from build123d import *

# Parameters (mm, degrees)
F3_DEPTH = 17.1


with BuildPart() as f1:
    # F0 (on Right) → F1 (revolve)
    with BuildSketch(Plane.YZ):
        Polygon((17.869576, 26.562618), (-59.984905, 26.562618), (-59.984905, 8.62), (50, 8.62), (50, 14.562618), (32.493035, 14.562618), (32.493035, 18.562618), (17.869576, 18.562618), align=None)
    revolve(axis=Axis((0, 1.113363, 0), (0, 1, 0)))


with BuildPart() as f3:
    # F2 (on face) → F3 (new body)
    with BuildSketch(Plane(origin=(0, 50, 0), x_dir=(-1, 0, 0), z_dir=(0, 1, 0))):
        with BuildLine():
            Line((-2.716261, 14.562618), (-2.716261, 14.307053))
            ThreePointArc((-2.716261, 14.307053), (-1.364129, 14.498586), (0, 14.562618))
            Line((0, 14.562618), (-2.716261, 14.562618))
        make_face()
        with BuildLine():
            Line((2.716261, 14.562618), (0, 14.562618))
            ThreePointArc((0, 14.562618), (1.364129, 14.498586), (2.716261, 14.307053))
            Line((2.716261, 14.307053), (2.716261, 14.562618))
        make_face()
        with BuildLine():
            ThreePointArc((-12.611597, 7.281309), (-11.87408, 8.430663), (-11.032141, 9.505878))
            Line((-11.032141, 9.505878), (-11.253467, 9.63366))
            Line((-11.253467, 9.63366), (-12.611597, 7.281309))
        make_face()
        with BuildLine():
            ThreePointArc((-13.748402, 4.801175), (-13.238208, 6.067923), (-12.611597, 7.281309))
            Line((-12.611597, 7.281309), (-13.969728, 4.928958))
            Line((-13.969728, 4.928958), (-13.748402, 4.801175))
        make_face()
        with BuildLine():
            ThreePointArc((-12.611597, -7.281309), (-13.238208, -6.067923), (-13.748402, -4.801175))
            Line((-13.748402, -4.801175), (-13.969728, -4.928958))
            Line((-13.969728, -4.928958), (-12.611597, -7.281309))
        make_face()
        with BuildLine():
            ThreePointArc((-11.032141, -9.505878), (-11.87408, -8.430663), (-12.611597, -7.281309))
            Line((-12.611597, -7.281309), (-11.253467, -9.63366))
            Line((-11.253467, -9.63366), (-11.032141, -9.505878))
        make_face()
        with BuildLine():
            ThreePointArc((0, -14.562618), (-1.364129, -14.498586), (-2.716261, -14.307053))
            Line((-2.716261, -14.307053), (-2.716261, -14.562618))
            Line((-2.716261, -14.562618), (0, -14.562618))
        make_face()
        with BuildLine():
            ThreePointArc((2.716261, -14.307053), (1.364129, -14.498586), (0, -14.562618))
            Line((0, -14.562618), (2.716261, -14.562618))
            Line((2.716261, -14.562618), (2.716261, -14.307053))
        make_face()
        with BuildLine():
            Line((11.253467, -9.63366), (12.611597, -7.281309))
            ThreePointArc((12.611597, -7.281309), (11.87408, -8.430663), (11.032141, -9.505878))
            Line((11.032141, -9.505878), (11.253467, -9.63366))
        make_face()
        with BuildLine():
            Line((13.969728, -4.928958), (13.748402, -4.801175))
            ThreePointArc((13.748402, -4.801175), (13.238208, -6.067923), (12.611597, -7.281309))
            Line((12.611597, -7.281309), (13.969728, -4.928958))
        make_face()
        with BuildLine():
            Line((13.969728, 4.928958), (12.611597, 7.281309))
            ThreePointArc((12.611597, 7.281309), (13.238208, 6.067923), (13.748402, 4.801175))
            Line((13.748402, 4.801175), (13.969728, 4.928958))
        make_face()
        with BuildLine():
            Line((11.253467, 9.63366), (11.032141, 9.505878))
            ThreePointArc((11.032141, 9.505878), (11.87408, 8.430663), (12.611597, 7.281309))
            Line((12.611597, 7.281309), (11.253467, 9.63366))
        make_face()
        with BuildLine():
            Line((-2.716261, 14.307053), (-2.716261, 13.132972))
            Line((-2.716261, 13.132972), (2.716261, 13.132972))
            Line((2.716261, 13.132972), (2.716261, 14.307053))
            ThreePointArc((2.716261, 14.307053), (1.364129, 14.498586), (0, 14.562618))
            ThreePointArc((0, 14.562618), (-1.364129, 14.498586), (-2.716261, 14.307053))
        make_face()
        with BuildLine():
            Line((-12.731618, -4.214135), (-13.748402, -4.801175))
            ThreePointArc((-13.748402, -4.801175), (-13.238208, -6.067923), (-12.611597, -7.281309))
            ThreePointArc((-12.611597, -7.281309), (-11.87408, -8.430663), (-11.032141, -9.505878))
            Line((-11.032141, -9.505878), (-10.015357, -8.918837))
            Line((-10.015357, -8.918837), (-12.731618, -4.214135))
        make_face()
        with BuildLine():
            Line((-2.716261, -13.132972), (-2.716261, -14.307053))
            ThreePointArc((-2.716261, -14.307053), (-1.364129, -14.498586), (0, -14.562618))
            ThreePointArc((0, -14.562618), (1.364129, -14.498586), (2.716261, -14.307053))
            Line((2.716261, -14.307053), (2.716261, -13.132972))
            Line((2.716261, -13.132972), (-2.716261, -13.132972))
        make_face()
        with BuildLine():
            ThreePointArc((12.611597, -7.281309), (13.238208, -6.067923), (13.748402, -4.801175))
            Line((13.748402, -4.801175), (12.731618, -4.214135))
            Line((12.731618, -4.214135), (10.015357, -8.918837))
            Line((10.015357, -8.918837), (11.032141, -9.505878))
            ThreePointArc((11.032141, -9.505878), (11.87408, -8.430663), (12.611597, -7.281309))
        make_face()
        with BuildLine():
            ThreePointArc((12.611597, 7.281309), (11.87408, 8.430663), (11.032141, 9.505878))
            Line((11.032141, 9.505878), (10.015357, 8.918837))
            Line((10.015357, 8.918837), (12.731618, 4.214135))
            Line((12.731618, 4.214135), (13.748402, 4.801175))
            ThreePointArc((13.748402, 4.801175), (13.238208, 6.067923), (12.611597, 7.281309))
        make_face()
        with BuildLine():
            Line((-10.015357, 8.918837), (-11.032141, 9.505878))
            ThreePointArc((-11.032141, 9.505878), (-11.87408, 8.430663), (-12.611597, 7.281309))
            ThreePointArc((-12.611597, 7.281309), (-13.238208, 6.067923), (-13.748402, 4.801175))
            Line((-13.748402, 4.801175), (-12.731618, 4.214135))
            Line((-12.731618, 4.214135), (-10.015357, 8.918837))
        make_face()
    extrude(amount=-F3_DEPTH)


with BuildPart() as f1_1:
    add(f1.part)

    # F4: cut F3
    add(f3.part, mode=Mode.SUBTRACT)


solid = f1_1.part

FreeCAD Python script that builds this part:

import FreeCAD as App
import Part
import Sketcher

V = App.Vector
Q = App.Units.Quantity

doc = App.newDocument("Part")
body = doc.addObject("PartDesign::Body", "Body")

# Sketch on YZ plane
sketch1 = body.newObject("Sketcher::SketchObject", "Sketch")
sketch1.AttachmentSupport = (doc.getObject("YZ_Plane"), [""])
sketch1.MapMode = "FlatFace"
sketch1.addGeometry([
    Part.LineSegment(V(17.9, 26.6, 0), V(-60, 26.6, 0)),  # 0
    Part.LineSegment(V(-60, 26.6, 0), V(-60, 8.6, 0)),  # 1
    Part.LineSegment(V(-60, 8.6, 0), V(50, 8.6, 0)),  # 2
    Part.LineSegment(V(50, 8.6, 0), V(50, 14.6, 0)),  # 3
    Part.LineSegment(V(50, 14.6, 0), V(32.5, 14.6, 0)),  # 4
    Part.LineSegment(V(32.5, 14.6, 0), V(32.5, 18.6, 0)),  # 5
    Part.LineSegment(V(32.5, 18.6, 0), V(17.9, 18.6, 0)),  # 6
    Part.LineSegment(V(17.9, 18.6, 0), V(17.9, 26.6, 0)),  # 7
], False)
sketch1.addConstraint([
    Sketcher.Constraint("Coincident", 0, 2, 1, 1),
    Sketcher.Constraint("Coincident", 1, 2, 2, 1),
    Sketcher.Constraint("Coincident", 2, 2, 3, 1),
    Sketcher.Constraint("Coincident", 3, 2, 4, 1),
    Sketcher.Constraint("Coincident", 4, 2, 5, 1),
    Sketcher.Constraint("Coincident", 5, 2, 6, 1),
    Sketcher.Constraint("Coincident", 6, 2, 7, 1),
    Sketcher.Constraint("Coincident", 7, 2, 0, 1),
    Sketcher.Constraint("Horizontal", 0),
    Sketcher.Constraint("Vertical", 1),
    Sketcher.Constraint("Horizontal", 2),
    Sketcher.Constraint("Vertical", 3),
    Sketcher.Constraint("Horizontal", 4),
    Sketcher.Constraint("Vertical", 5),
    Sketcher.Constraint("Horizontal", 6),
    Sketcher.Constraint("Vertical", 7),
    Sketcher.Constraint("DistanceY", 5, 1, 5, 2, Q("4 mm")),
    Sketcher.Constraint("DistanceY", 7, 1, 7, 2, Q("8 mm")),
    Sketcher.Constraint("DistanceX", -1, 1, 2, 2, Q("50 mm")),
    Sketcher.Constraint("DistanceY", -1, 1, 1, 2, Q("8.62 mm")),
    Sketcher.Constraint("DistanceX", 0, 2, 0, 1, Q("77.854481 mm")),
    Sketcher.Constraint("DistanceX", 6, 2, 6, 1, Q("14.623459 mm")),
    Sketcher.Constraint("DistanceY", 1, 2, 1, 1, Q("17.942618 mm")),
    Sketcher.Constraint("DistanceX", 2, 1, 2, 2, Q("109.984905 mm")),
])
revolution = body.newObject("PartDesign::Revolution", "Revolution")
revolution.Profile = sketch1
revolution.ReferenceAxis = (sketch1, ["H_Axis"])
revolution.Angle = 360
body2 = doc.addObject("PartDesign::Body", "Body001")
body2.AllowCompound = True

# Sketch on XZ plane
sketch2 = body2.newObject("Sketcher::SketchObject", "Sketch001")
sketch2.AttachmentSupport = (doc.getObject("XZ_Plane001"), [""])
sketch2.MapMode = "FlatFace"
sketch2.AttachmentOffset = App.Placement(V(0, 0, -50), App.Rotation())
sketch2.addGeometry([
    Part.LineSegment(V(2.72, 14.56, 0), V(2.72, 13.13, 0)),  # 0
    Part.LineSegment(V(2.72, 13.13, 0), V(-2.72, 13.13, 0)),  # 1
    Part.LineSegment(V(-2.72, 13.13, 0), V(-2.72, 14.56, 0)),  # 2
    Part.LineSegment(V(-2.72, 14.56, 0), V(2.72, 14.56, 0)),  # 3
    Part.LineSegment(V(11.03, 9.51, 0), V(11.25, 9.63, 0)),  # 4
    Part.LineSegment(V(11.25, 9.63, 0), V(12.61, 7.28, 0)),  # 5
    Part.LineSegment(V(12.61, 7.28, 0), V(13.97, 4.93, 0)),  # 6
    Part.LineSegment(V(13.97, 4.93, 0), V(13.75, 4.8, 0)),  # 7
    Part.LineSegment(V(13.75, 4.8, 0), V(12.73, 4.21, 0)),  # 8
    Part.LineSegment(V(12.73, 4.21, 0), V(10.02, 8.92, 0)),  # 9
    Part.LineSegment(V(10.02, 8.92, 0), V(11.03, 9.51, 0)),  # 10
    Part.LineSegment(V(13.75, -4.8, 0), V(13.97, -4.93, 0)),  # 11
    Part.LineSegment(V(13.97, -4.93, 0), V(12.61, -7.28, 0)),  # 12
    Part.LineSegment(V(12.61, -7.28, 0), V(11.25, -9.63, 0)),  # 13
    Part.LineSegment(V(11.25, -9.63, 0), V(11.03, -9.51, 0)),  # 14
    Part.LineSegment(V(11.03, -9.51, 0), V(10.02, -8.92, 0)),  # 15
    Part.LineSegment(V(10.02, -8.92, 0), V(12.73, -4.21, 0)),  # 16
    Part.LineSegment(V(12.73, -4.21, 0), V(13.75, -4.8, 0)),  # 17
    Part.LineSegment(V(2.72, -14.56, 0), V(-2.72, -14.56, 0)),  # 18
    Part.LineSegment(V(-2.72, -14.56, 0), V(-2.72, -13.13, 0)),  # 19
    Part.LineSegment(V(-2.72, -13.13, 0), V(2.72, -13.13, 0)),  # 20
    Part.LineSegment(V(2.72, -13.13, 0), V(2.72, -14.56, 0)),  # 21
    Part.LineSegment(V(-11.25, -9.63, 0), V(-12.61, -7.28, 0)),  # 22
    Part.LineSegment(V(-12.61, -7.28, 0), V(-13.97, -4.93, 0)),  # 23
    Part.LineSegment(V(-13.97, -4.93, 0), V(-13.75, -4.8, 0)),  # 24
    Part.LineSegment(V(-13.75, -4.8, 0), V(-12.73, -4.21, 0)),  # 25
    Part.LineSegment(V(-12.73, -4.21, 0), V(-10.02, -8.92, 0)),  # 26
    Part.LineSegment(V(-10.02, -8.92, 0), V(-11.03, -9.51, 0)),  # 27
    Part.LineSegment(V(-11.03, -9.51, 0), V(-11.25, -9.63, 0)),  # 28
    Part.LineSegment(V(-13.97, 4.93, 0), V(-12.61, 7.28, 0)),  # 29
    Part.LineSegment(V(-12.61, 7.28, 0), V(-11.25, 9.63, 0)),  # 30
    Part.LineSegment(V(-11.25, 9.63, 0), V(-11.03, 9.51, 0)),  # 31
    Part.LineSegment(V(-11.03, 9.51, 0), V(-10.02, 8.92, 0)),  # 32
    Part.LineSegment(V(-10.02, 8.92, 0), V(-12.73, 4.21, 0)),  # 33
    Part.LineSegment(V(-12.73, 4.21, 0), V(-13.75, 4.8, 0)),  # 34
    Part.LineSegment(V(-13.75, 4.8, 0), V(-13.97, 4.93, 0)),  # 35
], False)
sketch2.addConstraint([
    Sketcher.Constraint("Coincident", 0, 2, 1, 1),
    Sketcher.Constraint("Coincident", 1, 2, 2, 1),
    Sketcher.Constraint("Coincident", 2, 2, 3, 1),
    Sketcher.Constraint("Coincident", 3, 2, 0, 1),
    Sketcher.Constraint("Coincident", 4, 2, 5, 1),
    Sketcher.Constraint("Coincident", 5, 2, 6, 1),
    Sketcher.Constraint("Coincident", 6, 2, 7, 1),
    Sketcher.Constraint("Coincident", 7, 2, 8, 1),
    Sketcher.Constraint("Coincident", 8, 2, 9, 1),
    Sketcher.Constraint("Coincident", 9, 2, 10, 1),
    Sketcher.Constraint("Coincident", 10, 2, 4, 1),
    Sketcher.Constraint("Coincident", 11, 2, 12, 1),
    Sketcher.Constraint("Coincident", 12, 2, 13, 1),
    Sketcher.Constraint("Coincident", 13, 2, 14, 1),
    Sketcher.Constraint("Coincident", 14, 2, 15, 1),
    Sketcher.Constraint("Coincident", 15, 2, 16, 1),
    Sketcher.Constraint("Coincident", 16, 2, 17, 1),
    Sketcher.Constraint("Coincident", 17, 2, 11, 1),
    Sketcher.Constraint("Coincident", 18, 2, 19, 1),
    Sketcher.Constraint("Coincident", 19, 2, 20, 1),
    Sketcher.Constraint("Coincident", 20, 2, 21, 1),
    Sketcher.Constraint("Coincident", 21, 2, 18, 1),
    Sketcher.Constraint("Coincident", 22, 2, 23, 1),
    Sketcher.Constraint("Coincident", 23, 2, 24, 1),
    Sketcher.Constraint("Coincident", 24, 2, 25, 1),
    Sketcher.Constraint("Coincident", 25, 2, 26, 1),
    Sketcher.Constraint("Coincident", 26, 2, 27, 1),
    Sketcher.Constraint("Coincident", 27, 2, 28, 1),
    Sketcher.Constraint("Coincident", 28, 2, 22, 1),
    Sketcher.Constraint("Coincident", 29, 2, 30, 1),
    Sketcher.Constraint("Coincident", 30, 2, 31, 1),
    Sketcher.Constraint("Coincident", 31, 2, 32, 1),
    Sketcher.Constraint("Coincident", 32, 2, 33, 1),
    Sketcher.Constraint("Coincident", 33, 2, 34, 1),
    Sketcher.Constraint("Coincident", 34, 2, 35, 1),
    Sketcher.Constraint("Coincident", 35, 2, 29, 1),
    Sketcher.Constraint("Vertical", 0),
    Sketcher.Constraint("Horizontal", 1),
    Sketcher.Constraint("Vertical", 2),
    Sketcher.Constraint("Horizontal", 3),
    Sketcher.Constraint("Horizontal", 18),
    Sketcher.Constraint("Vertical", 19),
    Sketcher.Constraint("Horizontal", 20),
    Sketcher.Constraint("Vertical", 21),
    Sketcher.Constraint("Symmetric", 3, 2, 18, 2, -1, 1),
    Sketcher.Constraint("Symmetric", 1, 2, 20, 2, -1, 1),
    Sketcher.Constraint("Symmetric", 5, 2, 22, 2, -1, 1),
    Sketcher.Constraint("Symmetric", 6, 2, 23, 2, -1, 1),
    Sketcher.Constraint("Symmetric", 7, 2, 24, 2, -1, 1),
    Sketcher.Constraint("Symmetric", 8, 2, 25, 2, -1, 1),
    Sketcher.Constraint("Symmetric", 9, 2, 26, 2, -1, 1),
    Sketcher.Constraint("Symmetric", 10, 2, 27, 2, -1, 1),
    Sketcher.Constraint("Symmetric", 4, 2, 28, 2, -1, 1),
    Sketcher.Constraint("Symmetric", 12, 2, 29, 2, -1, 1),
    Sketcher.Constraint("Symmetric", 13, 2, 30, 2, -1, 1),
    Sketcher.Constraint("Symmetric", 14, 2, 31, 2, -1, 1),
    Sketcher.Constraint("Symmetric", 15, 2, 32, 2, -1, 1),
    Sketcher.Constraint("Symmetric", 16, 2, 33, 2, -1, 1),
    Sketcher.Constraint("Symmetric", 17, 2, 34, 2, -1, 1),
    Sketcher.Constraint("Symmetric", 11, 2, 35, 2, -1, 1),
    Sketcher.Constraint("Symmetric", 12, 2, 22, 2, -2),
    Sketcher.Constraint("Symmetric", 11, 2, 23, 2, -2),
    Sketcher.Constraint("Symmetric", 17, 2, 24, 2, -2),
    Sketcher.Constraint("Symmetric", 16, 2, 25, 2, -2),
    Sketcher.Constraint("Symmetric", 15, 2, 26, 2, -2),
    Sketcher.Constraint("Symmetric", 14, 2, 27, 2, -2),
    Sketcher.Constraint("Symmetric", 13, 2, 28, 2, -2),
    Sketcher.Constraint("Perpendicular", 4, 5),
    Sketcher.Constraint("Parallel", 5, 6),
    Sketcher.Constraint("Perpendicular", 6, 7),
    Sketcher.Constraint("Parallel", 7, 8),
    Sketcher.Constraint("Perpendicular", 8, 9),
    Sketcher.Constraint("Perpendicular", 9, 10),
    Sketcher.Constraint("Vertical", 2, 2, 18, 2),
    Sketcher.Constraint("Equal", 5, 6),
    Sketcher.Constraint("Equal", 4, 7),
    Sketcher.Constraint("Angle", 5, Q("-60.000009 deg")),
    Sketcher.Constraint("DistanceX", 1, 2, 1, 1, Q("5.432522 mm")),
    Sketcher.Constraint("DistanceX", 18, 2, 14, 2, Q("13.748402 mm")),
    Sketcher.Constraint("Distance", 5, Q("2.716261 mm")),
    Sketcher.Constraint("Distance", 8, Q("1.174081 mm")),
    Sketcher.Constraint("DistanceY", 0, 2, 0, 1, Q("1.429646 mm")),
    Sketcher.Constraint("DistanceY", -1, 1, 4, 2, Q("9.63366 mm")),
    Sketcher.Constraint("DistanceY", 4, 2, 0, 2, Q("3.499312 mm")),
    Sketcher.Constraint("DistanceX", 1, 2, 6, 2, Q("16.685989 mm")),
])
pad1 = body2.newObject("PartDesign::Pad", "Pad")
pad1.Profile = sketch2
pad1.Length = 17.1
doc.recompute()

boolean = body.newObject("PartDesign::Boolean", "Boolean")
boolean.Type = "Cut"
boolean.addObjects([body2])

doc.recompute()
